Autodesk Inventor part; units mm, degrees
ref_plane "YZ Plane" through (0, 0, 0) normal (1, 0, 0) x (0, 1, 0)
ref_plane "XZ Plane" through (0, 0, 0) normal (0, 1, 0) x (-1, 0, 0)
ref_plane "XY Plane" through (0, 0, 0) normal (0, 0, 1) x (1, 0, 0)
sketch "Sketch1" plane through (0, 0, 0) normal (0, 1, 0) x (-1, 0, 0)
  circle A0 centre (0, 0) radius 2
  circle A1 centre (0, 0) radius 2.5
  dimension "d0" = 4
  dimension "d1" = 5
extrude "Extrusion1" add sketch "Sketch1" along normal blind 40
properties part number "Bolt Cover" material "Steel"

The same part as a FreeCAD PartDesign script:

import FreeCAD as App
import Part
import Sketcher
from FreeCAD import Vector

doc = App.newDocument("Part")
params = doc.addObject("Spreadsheet::Sheet", "Params")
for row, (alias, value) in enumerate([
    ("sketch1_diameter", "5 mm"),
    ("sketch1_diameter2", "4 mm"),
    ("pad1_length", "40 mm"),
], start=1):
    params.set(f"A{row}", alias)
    params.set(f"B{row}", "=" + value)
    params.setAlias(f"B{row}", alias)

body = doc.addObject("PartDesign::Body", "Body")

# Sketch on XZ plane
sketch1 = doc.addObject("Sketcher::SketchObject", "Sketch")
body.addObject(sketch1)
sketch1.AttachmentSupport = (doc.XZ_Plane, [""])
sketch1.MapMode = "FlatFace"
sketch1.addGeometry(Part.Circle(Vector(0, 0, 0), Vector(0, 0, 1), 2.5), False)
sketch1.addGeometry(Part.Circle(Vector(0, 0, 0), Vector(0, 0, 1), 2), False)
sketch1.addConstraint(Sketcher.Constraint("Coincident", 0, 3, -1, 1))
sketch1.addConstraint(Sketcher.Constraint("Coincident", 1, 3, -1, 1))
sketch1.addConstraint(Sketcher.Constraint("Diameter", 0, 5.0))
sketch1.addConstraint(Sketcher.Constraint("Diameter", 1, 4.0))
sketch1.setExpression("Constraints[2]", "Params.sketch1_diameter")
sketch1.setExpression("Constraints[3]", "Params.sketch1_diameter2")
pad1 = doc.addObject("PartDesign::Pad", "Pad")
body.addObject(pad1)
pad1.Profile = sketch1
pad1.setExpression("Length", "Params.pad1_length")
pad1.Reversed = True

doc.recompute()
